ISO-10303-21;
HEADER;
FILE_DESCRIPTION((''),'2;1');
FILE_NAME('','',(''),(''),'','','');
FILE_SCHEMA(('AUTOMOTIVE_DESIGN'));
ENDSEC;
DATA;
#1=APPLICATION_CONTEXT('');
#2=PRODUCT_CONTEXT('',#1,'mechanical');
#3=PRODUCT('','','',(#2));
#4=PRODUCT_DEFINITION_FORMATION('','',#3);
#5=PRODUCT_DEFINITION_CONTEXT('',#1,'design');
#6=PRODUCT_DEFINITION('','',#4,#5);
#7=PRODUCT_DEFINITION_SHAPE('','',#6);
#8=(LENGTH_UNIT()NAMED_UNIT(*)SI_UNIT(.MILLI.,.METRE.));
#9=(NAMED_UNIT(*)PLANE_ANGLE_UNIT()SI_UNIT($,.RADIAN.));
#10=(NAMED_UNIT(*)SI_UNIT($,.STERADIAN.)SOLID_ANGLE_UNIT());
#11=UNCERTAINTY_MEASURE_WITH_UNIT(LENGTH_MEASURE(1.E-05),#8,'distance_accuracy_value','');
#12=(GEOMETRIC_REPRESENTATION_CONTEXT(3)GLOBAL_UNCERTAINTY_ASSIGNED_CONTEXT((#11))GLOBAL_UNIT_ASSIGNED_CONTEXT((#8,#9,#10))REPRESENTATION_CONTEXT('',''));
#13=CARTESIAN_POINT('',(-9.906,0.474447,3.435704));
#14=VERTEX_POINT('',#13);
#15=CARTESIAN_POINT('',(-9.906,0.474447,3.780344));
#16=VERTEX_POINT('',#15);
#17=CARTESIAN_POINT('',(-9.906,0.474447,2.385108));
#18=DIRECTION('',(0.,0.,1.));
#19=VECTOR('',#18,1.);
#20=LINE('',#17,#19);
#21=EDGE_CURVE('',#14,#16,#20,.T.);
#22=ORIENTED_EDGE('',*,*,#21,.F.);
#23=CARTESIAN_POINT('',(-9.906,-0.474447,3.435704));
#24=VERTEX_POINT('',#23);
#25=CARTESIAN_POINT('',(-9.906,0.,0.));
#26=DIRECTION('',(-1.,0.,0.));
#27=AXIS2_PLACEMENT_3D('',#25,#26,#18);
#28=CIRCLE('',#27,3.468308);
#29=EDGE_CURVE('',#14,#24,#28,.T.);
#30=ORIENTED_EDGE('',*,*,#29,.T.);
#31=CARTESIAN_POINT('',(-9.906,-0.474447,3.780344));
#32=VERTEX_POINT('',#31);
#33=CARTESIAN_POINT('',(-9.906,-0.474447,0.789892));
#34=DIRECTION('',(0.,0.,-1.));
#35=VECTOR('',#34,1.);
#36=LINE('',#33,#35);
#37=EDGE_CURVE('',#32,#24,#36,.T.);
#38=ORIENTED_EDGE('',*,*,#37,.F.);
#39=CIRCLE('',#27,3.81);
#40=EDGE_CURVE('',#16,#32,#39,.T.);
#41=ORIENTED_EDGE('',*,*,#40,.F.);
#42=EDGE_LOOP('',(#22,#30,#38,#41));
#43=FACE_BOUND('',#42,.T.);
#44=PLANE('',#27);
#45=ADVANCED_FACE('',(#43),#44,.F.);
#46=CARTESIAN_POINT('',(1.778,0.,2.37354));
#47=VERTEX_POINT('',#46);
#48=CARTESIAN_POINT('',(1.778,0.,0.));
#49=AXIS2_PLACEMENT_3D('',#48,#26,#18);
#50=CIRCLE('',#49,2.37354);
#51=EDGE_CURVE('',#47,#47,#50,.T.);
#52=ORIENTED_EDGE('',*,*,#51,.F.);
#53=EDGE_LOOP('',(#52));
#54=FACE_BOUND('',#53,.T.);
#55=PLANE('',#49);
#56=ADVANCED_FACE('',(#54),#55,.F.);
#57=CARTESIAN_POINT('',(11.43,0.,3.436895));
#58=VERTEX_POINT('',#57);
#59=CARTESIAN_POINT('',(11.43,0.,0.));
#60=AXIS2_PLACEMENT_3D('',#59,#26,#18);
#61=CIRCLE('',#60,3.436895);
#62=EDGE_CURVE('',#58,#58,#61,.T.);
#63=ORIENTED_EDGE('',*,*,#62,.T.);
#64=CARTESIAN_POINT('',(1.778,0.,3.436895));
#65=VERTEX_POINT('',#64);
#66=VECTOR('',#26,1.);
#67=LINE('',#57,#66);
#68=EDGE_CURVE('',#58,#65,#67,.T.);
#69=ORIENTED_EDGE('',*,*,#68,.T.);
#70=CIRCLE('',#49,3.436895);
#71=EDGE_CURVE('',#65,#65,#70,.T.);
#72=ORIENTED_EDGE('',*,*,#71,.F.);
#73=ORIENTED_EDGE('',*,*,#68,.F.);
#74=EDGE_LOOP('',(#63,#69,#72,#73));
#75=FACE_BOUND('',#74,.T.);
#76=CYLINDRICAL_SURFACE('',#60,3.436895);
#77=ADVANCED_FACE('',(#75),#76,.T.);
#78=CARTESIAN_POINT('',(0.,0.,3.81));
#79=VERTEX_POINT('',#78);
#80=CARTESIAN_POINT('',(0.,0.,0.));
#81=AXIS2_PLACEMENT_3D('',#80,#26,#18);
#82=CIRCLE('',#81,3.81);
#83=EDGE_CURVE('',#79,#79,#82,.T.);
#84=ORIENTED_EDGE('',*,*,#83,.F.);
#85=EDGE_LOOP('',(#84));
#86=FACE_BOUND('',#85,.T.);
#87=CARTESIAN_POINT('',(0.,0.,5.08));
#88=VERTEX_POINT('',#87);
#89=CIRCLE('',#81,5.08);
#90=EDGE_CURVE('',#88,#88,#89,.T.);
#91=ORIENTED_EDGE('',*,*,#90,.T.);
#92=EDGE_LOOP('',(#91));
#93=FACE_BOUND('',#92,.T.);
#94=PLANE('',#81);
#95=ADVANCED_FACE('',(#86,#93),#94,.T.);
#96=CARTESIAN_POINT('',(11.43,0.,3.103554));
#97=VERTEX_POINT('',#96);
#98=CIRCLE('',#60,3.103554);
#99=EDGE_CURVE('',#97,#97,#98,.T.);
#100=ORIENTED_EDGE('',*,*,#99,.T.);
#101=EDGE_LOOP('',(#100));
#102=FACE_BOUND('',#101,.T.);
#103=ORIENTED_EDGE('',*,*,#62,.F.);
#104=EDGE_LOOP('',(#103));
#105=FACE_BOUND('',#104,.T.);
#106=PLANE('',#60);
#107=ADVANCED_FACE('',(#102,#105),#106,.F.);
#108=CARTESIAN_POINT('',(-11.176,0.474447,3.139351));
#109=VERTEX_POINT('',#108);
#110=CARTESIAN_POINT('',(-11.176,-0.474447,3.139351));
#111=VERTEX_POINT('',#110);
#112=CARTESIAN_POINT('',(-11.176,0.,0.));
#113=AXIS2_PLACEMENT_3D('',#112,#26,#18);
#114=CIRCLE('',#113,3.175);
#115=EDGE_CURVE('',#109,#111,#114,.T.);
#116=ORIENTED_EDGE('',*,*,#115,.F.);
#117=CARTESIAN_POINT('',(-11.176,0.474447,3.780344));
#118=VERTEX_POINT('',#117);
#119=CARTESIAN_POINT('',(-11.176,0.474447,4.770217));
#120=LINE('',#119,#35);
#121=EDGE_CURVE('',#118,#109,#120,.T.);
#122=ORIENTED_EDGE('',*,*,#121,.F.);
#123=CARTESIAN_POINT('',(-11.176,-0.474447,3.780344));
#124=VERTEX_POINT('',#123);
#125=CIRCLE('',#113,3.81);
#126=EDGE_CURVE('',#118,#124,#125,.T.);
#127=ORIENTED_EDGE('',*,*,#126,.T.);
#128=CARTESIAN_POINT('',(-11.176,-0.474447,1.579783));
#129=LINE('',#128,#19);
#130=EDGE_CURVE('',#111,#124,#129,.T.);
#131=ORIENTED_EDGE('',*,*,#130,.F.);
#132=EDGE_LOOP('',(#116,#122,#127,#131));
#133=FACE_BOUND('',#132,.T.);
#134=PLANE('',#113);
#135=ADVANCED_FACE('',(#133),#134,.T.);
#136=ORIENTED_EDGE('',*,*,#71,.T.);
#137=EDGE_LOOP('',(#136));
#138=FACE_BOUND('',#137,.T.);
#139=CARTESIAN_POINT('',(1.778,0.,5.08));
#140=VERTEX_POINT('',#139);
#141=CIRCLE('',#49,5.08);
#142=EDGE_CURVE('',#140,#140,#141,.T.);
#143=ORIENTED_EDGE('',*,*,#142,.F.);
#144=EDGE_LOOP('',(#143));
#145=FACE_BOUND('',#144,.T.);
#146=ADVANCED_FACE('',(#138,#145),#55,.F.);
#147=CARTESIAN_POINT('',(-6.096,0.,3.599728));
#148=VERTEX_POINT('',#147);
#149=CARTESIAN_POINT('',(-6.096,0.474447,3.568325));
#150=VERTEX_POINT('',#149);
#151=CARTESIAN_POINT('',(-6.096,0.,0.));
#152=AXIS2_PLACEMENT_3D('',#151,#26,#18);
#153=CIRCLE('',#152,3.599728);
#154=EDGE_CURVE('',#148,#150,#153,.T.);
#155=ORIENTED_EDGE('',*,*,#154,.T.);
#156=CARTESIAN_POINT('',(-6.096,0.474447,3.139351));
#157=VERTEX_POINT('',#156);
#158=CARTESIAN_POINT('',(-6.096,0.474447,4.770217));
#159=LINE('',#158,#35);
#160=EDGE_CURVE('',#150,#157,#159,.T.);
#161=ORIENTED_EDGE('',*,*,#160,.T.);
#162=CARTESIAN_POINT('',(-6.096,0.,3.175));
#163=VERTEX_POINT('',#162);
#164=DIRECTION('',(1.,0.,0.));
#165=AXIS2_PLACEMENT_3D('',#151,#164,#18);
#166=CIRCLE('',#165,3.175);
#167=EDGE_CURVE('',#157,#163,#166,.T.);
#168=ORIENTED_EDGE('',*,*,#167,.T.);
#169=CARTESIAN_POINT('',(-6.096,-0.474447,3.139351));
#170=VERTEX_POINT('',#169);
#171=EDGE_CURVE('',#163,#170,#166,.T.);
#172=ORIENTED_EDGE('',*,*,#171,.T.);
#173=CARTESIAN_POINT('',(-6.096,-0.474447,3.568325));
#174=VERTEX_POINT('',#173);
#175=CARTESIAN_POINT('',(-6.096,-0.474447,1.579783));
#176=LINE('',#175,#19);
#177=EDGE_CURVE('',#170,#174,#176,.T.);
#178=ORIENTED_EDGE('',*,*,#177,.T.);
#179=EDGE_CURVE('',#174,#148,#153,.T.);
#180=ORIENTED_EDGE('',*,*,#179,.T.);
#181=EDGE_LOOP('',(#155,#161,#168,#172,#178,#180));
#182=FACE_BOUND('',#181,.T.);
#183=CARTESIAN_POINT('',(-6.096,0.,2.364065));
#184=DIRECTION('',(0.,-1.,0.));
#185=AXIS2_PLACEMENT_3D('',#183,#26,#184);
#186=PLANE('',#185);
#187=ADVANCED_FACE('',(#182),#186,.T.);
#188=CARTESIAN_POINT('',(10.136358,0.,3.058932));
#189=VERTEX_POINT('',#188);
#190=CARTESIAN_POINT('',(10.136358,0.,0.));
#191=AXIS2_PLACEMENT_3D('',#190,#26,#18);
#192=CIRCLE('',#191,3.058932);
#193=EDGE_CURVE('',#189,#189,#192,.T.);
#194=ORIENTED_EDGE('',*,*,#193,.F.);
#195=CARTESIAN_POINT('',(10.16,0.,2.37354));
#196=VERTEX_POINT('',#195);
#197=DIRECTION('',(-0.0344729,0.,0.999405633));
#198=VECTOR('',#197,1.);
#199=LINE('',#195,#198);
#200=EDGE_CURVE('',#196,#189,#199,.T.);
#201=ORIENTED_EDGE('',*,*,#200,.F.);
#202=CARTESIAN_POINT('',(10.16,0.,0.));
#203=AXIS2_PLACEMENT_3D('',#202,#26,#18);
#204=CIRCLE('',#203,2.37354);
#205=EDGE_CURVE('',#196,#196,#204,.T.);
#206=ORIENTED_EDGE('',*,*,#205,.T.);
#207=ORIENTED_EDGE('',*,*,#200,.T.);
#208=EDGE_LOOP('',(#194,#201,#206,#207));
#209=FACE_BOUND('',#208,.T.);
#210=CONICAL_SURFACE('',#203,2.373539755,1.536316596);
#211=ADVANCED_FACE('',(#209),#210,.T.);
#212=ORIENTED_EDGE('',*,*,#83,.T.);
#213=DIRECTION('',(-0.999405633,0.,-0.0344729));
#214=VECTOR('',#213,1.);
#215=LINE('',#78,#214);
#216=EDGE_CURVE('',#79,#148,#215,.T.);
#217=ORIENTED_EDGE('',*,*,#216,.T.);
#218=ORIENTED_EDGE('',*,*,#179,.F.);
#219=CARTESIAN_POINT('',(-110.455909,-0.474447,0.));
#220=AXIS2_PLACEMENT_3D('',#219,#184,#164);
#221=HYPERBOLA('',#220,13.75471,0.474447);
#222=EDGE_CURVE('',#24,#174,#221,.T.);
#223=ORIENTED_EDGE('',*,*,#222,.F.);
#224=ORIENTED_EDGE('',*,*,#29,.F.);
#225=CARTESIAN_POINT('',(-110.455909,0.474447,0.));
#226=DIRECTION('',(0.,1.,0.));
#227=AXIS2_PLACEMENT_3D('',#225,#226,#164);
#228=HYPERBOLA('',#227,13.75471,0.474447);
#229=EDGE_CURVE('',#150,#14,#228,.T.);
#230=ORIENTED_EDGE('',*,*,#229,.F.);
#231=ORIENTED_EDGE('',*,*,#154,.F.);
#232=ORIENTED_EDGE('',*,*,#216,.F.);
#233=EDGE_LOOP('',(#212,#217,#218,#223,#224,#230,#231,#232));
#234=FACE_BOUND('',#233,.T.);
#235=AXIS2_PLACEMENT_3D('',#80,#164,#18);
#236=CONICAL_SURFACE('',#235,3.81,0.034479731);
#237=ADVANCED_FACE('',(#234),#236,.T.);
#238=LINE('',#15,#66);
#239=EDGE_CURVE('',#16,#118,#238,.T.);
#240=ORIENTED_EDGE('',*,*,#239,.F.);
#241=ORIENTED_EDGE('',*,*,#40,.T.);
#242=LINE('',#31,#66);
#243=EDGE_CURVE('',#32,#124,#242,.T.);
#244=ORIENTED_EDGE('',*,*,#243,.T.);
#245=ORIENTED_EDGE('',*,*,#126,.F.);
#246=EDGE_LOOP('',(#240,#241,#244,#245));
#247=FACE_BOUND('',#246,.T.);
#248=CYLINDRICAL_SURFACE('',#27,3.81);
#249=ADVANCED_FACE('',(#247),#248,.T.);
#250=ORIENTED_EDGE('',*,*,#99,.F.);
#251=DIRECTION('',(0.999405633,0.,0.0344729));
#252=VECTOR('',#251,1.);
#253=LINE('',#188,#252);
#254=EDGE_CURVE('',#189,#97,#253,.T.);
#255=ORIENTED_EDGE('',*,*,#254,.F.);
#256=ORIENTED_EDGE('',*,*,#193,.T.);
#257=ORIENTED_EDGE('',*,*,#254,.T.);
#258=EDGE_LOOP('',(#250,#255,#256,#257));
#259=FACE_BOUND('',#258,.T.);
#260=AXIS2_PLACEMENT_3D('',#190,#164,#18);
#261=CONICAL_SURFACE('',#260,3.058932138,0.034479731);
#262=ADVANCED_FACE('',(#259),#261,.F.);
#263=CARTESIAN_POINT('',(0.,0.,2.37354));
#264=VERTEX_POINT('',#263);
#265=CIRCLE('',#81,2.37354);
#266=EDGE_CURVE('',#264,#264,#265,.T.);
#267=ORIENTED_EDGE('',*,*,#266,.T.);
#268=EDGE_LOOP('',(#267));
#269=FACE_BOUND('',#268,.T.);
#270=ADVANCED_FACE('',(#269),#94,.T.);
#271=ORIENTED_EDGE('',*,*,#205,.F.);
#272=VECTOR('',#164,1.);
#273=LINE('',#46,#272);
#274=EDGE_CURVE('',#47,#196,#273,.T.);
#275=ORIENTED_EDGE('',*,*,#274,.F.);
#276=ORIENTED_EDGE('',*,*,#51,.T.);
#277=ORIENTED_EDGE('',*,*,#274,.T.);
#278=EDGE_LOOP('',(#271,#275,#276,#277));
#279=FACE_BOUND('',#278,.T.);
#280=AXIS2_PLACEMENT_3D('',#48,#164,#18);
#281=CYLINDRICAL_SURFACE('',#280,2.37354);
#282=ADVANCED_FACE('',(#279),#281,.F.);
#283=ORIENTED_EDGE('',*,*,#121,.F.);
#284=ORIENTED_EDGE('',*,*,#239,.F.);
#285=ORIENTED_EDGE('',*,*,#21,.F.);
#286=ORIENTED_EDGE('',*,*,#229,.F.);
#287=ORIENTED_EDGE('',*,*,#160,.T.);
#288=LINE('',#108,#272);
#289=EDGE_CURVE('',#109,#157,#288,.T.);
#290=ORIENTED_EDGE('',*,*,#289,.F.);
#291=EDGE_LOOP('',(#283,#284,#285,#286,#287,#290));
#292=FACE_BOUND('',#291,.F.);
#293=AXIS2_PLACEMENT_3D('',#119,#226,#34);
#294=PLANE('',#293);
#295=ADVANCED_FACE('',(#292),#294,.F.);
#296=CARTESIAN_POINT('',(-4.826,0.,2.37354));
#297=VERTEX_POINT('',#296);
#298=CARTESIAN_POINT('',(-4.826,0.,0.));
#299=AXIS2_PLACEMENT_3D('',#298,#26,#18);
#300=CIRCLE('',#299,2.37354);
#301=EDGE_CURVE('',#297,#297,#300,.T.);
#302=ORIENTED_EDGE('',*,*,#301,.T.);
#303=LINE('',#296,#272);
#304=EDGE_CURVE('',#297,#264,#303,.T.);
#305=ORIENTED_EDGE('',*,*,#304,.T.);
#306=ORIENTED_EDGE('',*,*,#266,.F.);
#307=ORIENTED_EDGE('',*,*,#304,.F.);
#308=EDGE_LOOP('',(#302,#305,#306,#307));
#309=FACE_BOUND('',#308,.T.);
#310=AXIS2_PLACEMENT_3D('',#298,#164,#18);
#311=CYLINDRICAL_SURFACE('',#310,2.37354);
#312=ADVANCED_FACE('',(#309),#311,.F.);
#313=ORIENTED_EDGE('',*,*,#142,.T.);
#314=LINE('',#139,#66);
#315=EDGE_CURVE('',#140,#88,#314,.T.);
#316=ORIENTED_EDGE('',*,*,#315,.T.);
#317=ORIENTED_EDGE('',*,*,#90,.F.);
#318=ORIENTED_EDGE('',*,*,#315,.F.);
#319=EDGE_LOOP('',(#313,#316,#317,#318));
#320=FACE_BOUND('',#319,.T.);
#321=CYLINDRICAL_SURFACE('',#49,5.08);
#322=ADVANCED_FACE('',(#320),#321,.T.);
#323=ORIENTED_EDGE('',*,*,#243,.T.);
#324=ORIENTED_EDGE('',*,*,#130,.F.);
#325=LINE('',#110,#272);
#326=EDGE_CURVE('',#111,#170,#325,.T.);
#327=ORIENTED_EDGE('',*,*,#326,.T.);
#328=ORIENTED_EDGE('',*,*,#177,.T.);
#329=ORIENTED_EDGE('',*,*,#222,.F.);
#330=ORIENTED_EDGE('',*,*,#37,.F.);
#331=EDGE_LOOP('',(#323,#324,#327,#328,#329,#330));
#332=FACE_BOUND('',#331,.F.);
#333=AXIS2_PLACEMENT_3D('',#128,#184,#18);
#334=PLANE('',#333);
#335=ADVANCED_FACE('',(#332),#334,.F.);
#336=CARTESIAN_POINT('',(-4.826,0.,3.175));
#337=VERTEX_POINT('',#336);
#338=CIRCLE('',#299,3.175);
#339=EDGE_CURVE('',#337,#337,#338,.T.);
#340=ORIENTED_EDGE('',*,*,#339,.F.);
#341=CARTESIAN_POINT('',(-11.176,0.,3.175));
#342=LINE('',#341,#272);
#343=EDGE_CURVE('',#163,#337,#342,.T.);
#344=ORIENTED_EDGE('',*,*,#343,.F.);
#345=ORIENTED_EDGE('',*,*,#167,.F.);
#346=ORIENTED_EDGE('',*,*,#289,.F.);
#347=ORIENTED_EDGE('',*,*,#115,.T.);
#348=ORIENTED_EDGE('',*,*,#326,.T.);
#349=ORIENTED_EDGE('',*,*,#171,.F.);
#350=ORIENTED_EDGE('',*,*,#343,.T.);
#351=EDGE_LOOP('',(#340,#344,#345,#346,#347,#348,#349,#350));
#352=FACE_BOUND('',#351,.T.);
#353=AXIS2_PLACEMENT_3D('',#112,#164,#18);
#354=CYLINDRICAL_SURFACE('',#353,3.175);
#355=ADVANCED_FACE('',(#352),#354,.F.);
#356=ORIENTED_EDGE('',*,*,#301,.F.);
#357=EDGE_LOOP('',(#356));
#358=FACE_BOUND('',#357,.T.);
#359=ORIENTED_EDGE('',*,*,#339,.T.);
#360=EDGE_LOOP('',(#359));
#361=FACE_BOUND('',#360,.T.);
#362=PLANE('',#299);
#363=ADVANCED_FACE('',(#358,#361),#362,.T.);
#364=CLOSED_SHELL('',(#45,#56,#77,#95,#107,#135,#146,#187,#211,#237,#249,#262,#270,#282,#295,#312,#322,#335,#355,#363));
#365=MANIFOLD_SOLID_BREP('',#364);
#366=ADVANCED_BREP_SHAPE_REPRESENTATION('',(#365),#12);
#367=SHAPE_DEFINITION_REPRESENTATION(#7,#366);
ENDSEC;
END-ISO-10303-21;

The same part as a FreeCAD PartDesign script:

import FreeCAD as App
import Part
import Sketcher
from FreeCAD import Vector
Q = App.Units.Quantity

doc = App.newDocument("Part")
body = doc.addObject("PartDesign::Body", "Body")

# Sketch on XZ plane
sketch1 = body.newObject("Sketcher::SketchObject", "Sketch")
sketch1.AttachmentSupport = (doc.getObject("XZ_Plane"), [""])
sketch1.MapMode = "FlatFace"
sketch1.addGeometry([
    Part.LineSegment(Vector(0, 2.37354, 0), Vector(0, 0, 0)),  # 0
    Part.LineSegment(Vector(0, 0, 0), Vector(1.778, 0, 0)),  # 1
    Part.LineSegment(Vector(1.778, 0, 0), Vector(1.778, 2.37354, 0)),  # 2
    Part.LineSegment(Vector(1.778, 2.37354, 0), Vector(10.16, 2.37354, 0)),  # 3
    Part.LineSegment(Vector(10.16, 2.37354, 0), Vector(10.136358, 3.058932, 0)),  # 4
    Part.LineSegment(Vector(10.136358, 3.058932, 0), Vector(11.43, 3.103554, 0)),  # 5
    Part.LineSegment(Vector(11.43, 3.103554, 0), Vector(11.43, 3.436895, 0)),  # 6
    Part.LineSegment(Vector(11.43, 3.436895, 0), Vector(1.778, 3.436895, 0)),  # 7
    Part.LineSegment(Vector(1.778, 3.436895, 0), Vector(1.778, 5.08, 0)),  # 8
    Part.LineSegment(Vector(1.778, 5.08, 0), Vector(0, 5.08, 0)),  # 9
    Part.LineSegment(Vector(0, 5.08, 0), Vector(0, 3.81, 0)),  # 10
    Part.LineSegment(Vector(0, 3.81, 0), Vector(-9.906, 3.468308, 0)),  # 11
    Part.LineSegment(Vector(-9.906, 3.468308, 0), Vector(-9.906, 3.81, 0)),  # 12
    Part.LineSegment(Vector(-9.906, 3.81, 0), Vector(-11.176, 3.81, 0)),  # 13
    Part.LineSegment(Vector(-11.176, 3.81, 0), Vector(-11.176, 3.175, 0)),  # 14
    Part.LineSegment(Vector(-11.176, 3.175, 0), Vector(-4.826, 3.175, 0)),  # 15
    Part.LineSegment(Vector(-4.826, 3.175, 0), Vector(-4.826, 2.37354, 0)),  # 16
    Part.LineSegment(Vector(-4.826, 2.37354, 0), Vector(0, 2.37354, 0)),  # 17
], False)
sketch1.addConstraint([
    Sketcher.Constraint("Coincident", 0, 2, 1, 1),
    Sketcher.Constraint("Coincident", 1, 2, 2, 1),
    Sketcher.Constraint("Coincident", 2, 2, 3, 1),
    Sketcher.Constraint("Coincident", 3, 2, 4, 1),
    Sketcher.Constraint("Coincident", 4, 2, 5, 1),
    Sketcher.Constraint("Coincident", 5, 2, 6, 1),
    Sketcher.Constraint("Coincident", 6, 2, 7, 1),
    Sketcher.Constraint("Coincident", 7, 2, 8, 1),
    Sketcher.Constraint("Coincident", 8, 2, 9, 1),
    Sketcher.Constraint("Coincident", 9, 2, 10, 1),
    Sketcher.Constraint("Coincident", 10, 2, 11, 1),
    Sketcher.Constraint("Coincident", 11, 2, 12, 1),
    Sketcher.Constraint("Coincident", 12, 2, 13, 1),
    Sketcher.Constraint("Coincident", 13, 2, 14, 1),
    Sketcher.Constraint("Coincident", 14, 2, 15, 1),
    Sketcher.Constraint("Coincident", 15, 2, 16, 1),
    Sketcher.Constraint("Coincident", 16, 2, 17, 1),
    Sketcher.Constraint("Coincident", 17, 2, 0, 1),
    Sketcher.Constraint("Vertical", 0),
    Sketcher.Constraint("Horizontal", 1),
    Sketcher.Constraint("Vertical", 2),
    Sketcher.Constraint("Horizontal", 3),
    Sketcher.Constraint("Vertical", 6),
    Sketcher.Constraint("Horizontal", 7),
    Sketcher.Constraint("Vertical", 8),
    Sketcher.Constraint("Horizontal", 9),
    Sketcher.Constraint("Vertical", 10),
    Sketcher.Constraint("Vertical", 12),
    Sketcher.Constraint("Horizontal", 13),
    Sketcher.Constraint("Vertical", 14),
    Sketcher.Constraint("Horizontal", 15),
    Sketcher.Constraint("Vertical", 16),
    Sketcher.Constraint("Horizontal", 17),
    Sketcher.Constraint("Coincident", 0, 2, -1, 1),
    Sketcher.Constraint("PointOnObject", 9, 2, -2),
    Sketcher.Constraint("Perpendicular", 4, 5),
    Sketcher.Constraint("Parallel", 5, 11),
    Sketcher.Constraint("Horizontal", 10, 2, 12, 2),
    Sketcher.Constraint("Horizontal", 3, 2, 16, 2),
    Sketcher.Constraint("Vertical", 2, 2, 7, 2),
    Sketcher.Constraint("Equal", 13, 10),
    Sketcher.Constraint("DistanceX", 1, 1, 1, 2, Q("0.07 in")),
    Sketcher.Constraint("DistanceX", 3, 1, 3, 2, Q("0.33 in")),
    Sketcher.Constraint("DistanceX", 7, 2, 7, 1, Q("0.38 in")),
    Sketcher.Constraint("DistanceX", 13, 2, 13, 1, Q("0.05 in")),
    Sketcher.Constraint("DistanceX", 15, 1, 15, 2, Q("0.25 in")),
    Sketcher.Constraint("DistanceX", 17, 1, 17, 2, Q("0.19 in")),
    Sketcher.Constraint("DistanceY", -1, 1, 8, 2, Q("0.2 in")),
    Sketcher.Constraint("DistanceY", 14, 2, 14, 1, Q("0.025 in")),
    Sketcher.Constraint("Distance", 4, Q("0.027 in")),
    Sketcher.Constraint("DistanceY", 0, 2, 0, 1, 2.37354),
    Sketcher.Constraint("DistanceY", 6, 1, 6, 2, 0.33334),
    Sketcher.Constraint("DistanceY", 12, 1, 12, 2, 0.341692),
])
revolution = body.newObject("PartDesign::Revolution", "Revolution")
revolution.Profile = sketch1
revolution.ReferenceAxis = (sketch1, ["H_Axis"])
revolution.Angle = 360

# Sketch on YZ plane
sketch2 = body.newObject("Sketcher::SketchObject", "Sketch001")
sketch2.AttachmentSupport = (doc.getObject("YZ_Plane"), [""])
sketch2.MapMode = "FlatFace"
sketch2.AttachmentOffset = App.Placement(Vector(0, 0, -0.44 * 25.4), App.Rotation())
sketch2.addGeometry([
    Part.LineSegment(Vector(0.474447, 1.579783, 0), Vector(-0.474447, 1.579783, 0)),
    Part.LineSegment(Vector(-0.474447, 1.579783, 0), Vector(-0.474447, 4.770217, 0)),
    Part.LineSegment(Vector(-0.474447, 4.770217, 0), Vector(0.474447, 4.770217, 0)),
    Part.LineSegment(Vector(0.474447, 4.770217, 0), Vector(0.474447, 1.579783, 0)),
], False)
sketch2.addConstraint([
    Sketcher.Constraint("Coincident", 0, 2, 1, 1),
    Sketcher.Constraint("Coincident", 1, 2, 2, 1),
    Sketcher.Constraint("Coincident", 2, 2, 3, 1),
    Sketcher.Constraint("Coincident", 3, 2, 0, 1),
    Sketcher.Constraint("Horizontal", 0),
    Sketcher.Constraint("Vertical", 1),
    Sketcher.Constraint("Horizontal", 2),
    Sketcher.Constraint("Vertical", 3),
    Sketcher.Constraint("DistanceX", 0, 2, 0, 1, 0.948893),
    Sketcher.Constraint("DistanceY", 1, 1, 1, 2, 3.190433),
    Sketcher.Constraint("DistanceX", 0, 2, -1, 1, 0.474447),
    Sketcher.Constraint("DistanceY", -1, 1, 0, 2, 1.579783),
])
pocket1 = body.newObject("PartDesign::Pocket", "Pocket")
pocket1.Profile = sketch2
pocket1.Length = Q("0.2 in")
pocket1.Reversed = True

doc.recompute()
